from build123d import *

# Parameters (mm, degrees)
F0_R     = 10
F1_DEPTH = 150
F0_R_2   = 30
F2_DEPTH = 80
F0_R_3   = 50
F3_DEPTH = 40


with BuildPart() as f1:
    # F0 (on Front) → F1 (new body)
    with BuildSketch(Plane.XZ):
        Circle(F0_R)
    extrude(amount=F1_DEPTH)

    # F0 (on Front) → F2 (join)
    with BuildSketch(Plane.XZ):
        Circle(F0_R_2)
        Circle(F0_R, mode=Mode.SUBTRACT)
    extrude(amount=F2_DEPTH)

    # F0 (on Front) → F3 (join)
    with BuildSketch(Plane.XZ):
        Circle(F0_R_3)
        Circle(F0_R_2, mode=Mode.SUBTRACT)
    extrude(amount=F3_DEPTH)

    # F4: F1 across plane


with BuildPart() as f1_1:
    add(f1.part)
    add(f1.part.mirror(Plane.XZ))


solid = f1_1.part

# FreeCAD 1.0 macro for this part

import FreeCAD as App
import Part
import Sketcher

doc = App.newDocument("Part")
body = doc.addObject("PartDesign::Body", "Body")

# Sketch on XZ plane
sketch1 = body.newObject("Sketcher::SketchObject", "Sketch")
sketch1.AttachmentSupport = (doc.getObject("XZ_Plane"), [""])
sketch1.MapMode = "FlatFace"
sketch1.addGeometry(Part.Circle(App.Vector(0, 0, 0), App.Vector(0, 0, 1), 10), False)
sketch1.addConstraint([
    Sketcher.Constraint("Coincident", 0, 3, -1, 1),
    Sketcher.Constraint("Diameter", 0, 20.0),
])
pad1 = body.newObject("PartDesign::Pad", "Pad")
pad1.Profile = sketch1
pad1.Length = 150

# Sketch on XZ plane
sketch2 = body.newObject("Sketcher::SketchObject", "Sketch001")
sketch2.AttachmentSupport = (doc.getObject("XZ_Plane"), [""])
sketch2.MapMode = "FlatFace"
sketch2.addGeometry([
    Part.Circle(App.Vector(0, 0, 0), App.Vector(0, 0, 1), 30),
    Part.Circle(App.Vector(0, 0, 0), App.Vector(0, 0, 1), 10),
], False)
sketch2.addConstraint([
    Sketcher.Constraint("Coincident", 0, 3, -1, 1),
    Sketcher.Constraint("Coincident", 1, 3, -1, 1),
    Sketcher.Constraint("Diameter", 0, 60.0),
    Sketcher.Constraint("Diameter", 1, 20.0),
])
pad2 = body.newObject("PartDesign::Pad", "Pad001")
pad2.Profile = sketch2
pad2.Length = 80

# Sketch on XZ plane
sketch3 = body.newObject("Sketcher::SketchObject", "Sketch002")
sketch3.AttachmentSupport = (doc.getObject("XZ_Plane"), [""])
sketch3.MapMode = "FlatFace"
sketch3.addGeometry([
    Part.Circle(App.Vector(0, 0, 0), App.Vector(0, 0, 1), 50),
    Part.Circle(App.Vector(0, 0, 0), App.Vector(0, 0, 1), 30),
], False)
sketch3.addConstraint([
    Sketcher.Constraint("Coincident", 0, 3, -1, 1),
    Sketcher.Constraint("Coincident", 1, 3, -1, 1),
    Sketcher.Constraint("Diameter", 0, 100.0),
    Sketcher.Constraint("Diameter", 1, 60.0),
])
pad3 = body.newObject("PartDesign::Pad", "Pad002")
pad3.Profile = sketch3
pad3.Length = 40
body2 = doc.addObject("PartDesign::Body", "Body001")
doc.recompute()

body2.BaseFeature = body
doc.recompute()

mirroring = doc.addObject("Part::Mirroring", "Mirroring")
mirroring.Source = body
mirroring.Base = App.Vector(0, 0, 0)
mirroring.Normal = App.Vector(0, -1, 0)
body3 = doc.addObject("PartDesign::Body", "Body002")
body3.BaseFeature = mirroring
boolean = body2.newObject("PartDesign::Boolean", "Boolean")
boolean.Type = "Fuse"
boolean.addObjects([body3])
doc.recompute()
mirroring.Visibility = False

doc.recompute()
